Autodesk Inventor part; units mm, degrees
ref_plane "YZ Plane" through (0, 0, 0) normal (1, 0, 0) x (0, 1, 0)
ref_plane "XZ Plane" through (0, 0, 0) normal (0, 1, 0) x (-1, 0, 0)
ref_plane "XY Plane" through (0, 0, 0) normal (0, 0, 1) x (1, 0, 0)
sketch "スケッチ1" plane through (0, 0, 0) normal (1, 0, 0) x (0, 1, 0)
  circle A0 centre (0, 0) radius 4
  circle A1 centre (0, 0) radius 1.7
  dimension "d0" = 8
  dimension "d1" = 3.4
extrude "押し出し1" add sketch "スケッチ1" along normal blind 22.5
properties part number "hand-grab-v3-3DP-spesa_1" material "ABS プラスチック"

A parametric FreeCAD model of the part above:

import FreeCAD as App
import Part
import Sketcher
from FreeCAD import Vector
Q = App.Units.Quantity

doc = App.newDocument("Part")
body = doc.addObject("PartDesign::Body", "Body")

# Sketch on YZ plane
sketch1 = body.newObject("Sketcher::SketchObject", "Sketch")
sketch1.AttachmentSupport = (doc.getObject("YZ_Plane"), [""])
sketch1.MapMode = "FlatFace"
sketch1.addGeometry(Part.Circle(Vector(0, 0, 0), Vector(0, 0, 1), 4), False)
sketch1.addGeometry(Part.Circle(Vector(0, 0, 0), Vector(0, 0, 1), 1.7), False)
sketch1.addConstraint(Sketcher.Constraint("Coincident", 0, 3, -1, 1))
sketch1.addConstraint(Sketcher.Constraint("Coincident", 1, 3, -1, 1))
sketch1.addConstraint(Sketcher.Constraint("Diameter", 0, Q("8 mm")))
sketch1.addConstraint(Sketcher.Constraint("Diameter", 1, Q("3.4 mm")))
pad1 = body.newObject("PartDesign::Pad", "Pad")
pad1.Profile = sketch1
pad1.Length = 22.5

doc.recompute()
